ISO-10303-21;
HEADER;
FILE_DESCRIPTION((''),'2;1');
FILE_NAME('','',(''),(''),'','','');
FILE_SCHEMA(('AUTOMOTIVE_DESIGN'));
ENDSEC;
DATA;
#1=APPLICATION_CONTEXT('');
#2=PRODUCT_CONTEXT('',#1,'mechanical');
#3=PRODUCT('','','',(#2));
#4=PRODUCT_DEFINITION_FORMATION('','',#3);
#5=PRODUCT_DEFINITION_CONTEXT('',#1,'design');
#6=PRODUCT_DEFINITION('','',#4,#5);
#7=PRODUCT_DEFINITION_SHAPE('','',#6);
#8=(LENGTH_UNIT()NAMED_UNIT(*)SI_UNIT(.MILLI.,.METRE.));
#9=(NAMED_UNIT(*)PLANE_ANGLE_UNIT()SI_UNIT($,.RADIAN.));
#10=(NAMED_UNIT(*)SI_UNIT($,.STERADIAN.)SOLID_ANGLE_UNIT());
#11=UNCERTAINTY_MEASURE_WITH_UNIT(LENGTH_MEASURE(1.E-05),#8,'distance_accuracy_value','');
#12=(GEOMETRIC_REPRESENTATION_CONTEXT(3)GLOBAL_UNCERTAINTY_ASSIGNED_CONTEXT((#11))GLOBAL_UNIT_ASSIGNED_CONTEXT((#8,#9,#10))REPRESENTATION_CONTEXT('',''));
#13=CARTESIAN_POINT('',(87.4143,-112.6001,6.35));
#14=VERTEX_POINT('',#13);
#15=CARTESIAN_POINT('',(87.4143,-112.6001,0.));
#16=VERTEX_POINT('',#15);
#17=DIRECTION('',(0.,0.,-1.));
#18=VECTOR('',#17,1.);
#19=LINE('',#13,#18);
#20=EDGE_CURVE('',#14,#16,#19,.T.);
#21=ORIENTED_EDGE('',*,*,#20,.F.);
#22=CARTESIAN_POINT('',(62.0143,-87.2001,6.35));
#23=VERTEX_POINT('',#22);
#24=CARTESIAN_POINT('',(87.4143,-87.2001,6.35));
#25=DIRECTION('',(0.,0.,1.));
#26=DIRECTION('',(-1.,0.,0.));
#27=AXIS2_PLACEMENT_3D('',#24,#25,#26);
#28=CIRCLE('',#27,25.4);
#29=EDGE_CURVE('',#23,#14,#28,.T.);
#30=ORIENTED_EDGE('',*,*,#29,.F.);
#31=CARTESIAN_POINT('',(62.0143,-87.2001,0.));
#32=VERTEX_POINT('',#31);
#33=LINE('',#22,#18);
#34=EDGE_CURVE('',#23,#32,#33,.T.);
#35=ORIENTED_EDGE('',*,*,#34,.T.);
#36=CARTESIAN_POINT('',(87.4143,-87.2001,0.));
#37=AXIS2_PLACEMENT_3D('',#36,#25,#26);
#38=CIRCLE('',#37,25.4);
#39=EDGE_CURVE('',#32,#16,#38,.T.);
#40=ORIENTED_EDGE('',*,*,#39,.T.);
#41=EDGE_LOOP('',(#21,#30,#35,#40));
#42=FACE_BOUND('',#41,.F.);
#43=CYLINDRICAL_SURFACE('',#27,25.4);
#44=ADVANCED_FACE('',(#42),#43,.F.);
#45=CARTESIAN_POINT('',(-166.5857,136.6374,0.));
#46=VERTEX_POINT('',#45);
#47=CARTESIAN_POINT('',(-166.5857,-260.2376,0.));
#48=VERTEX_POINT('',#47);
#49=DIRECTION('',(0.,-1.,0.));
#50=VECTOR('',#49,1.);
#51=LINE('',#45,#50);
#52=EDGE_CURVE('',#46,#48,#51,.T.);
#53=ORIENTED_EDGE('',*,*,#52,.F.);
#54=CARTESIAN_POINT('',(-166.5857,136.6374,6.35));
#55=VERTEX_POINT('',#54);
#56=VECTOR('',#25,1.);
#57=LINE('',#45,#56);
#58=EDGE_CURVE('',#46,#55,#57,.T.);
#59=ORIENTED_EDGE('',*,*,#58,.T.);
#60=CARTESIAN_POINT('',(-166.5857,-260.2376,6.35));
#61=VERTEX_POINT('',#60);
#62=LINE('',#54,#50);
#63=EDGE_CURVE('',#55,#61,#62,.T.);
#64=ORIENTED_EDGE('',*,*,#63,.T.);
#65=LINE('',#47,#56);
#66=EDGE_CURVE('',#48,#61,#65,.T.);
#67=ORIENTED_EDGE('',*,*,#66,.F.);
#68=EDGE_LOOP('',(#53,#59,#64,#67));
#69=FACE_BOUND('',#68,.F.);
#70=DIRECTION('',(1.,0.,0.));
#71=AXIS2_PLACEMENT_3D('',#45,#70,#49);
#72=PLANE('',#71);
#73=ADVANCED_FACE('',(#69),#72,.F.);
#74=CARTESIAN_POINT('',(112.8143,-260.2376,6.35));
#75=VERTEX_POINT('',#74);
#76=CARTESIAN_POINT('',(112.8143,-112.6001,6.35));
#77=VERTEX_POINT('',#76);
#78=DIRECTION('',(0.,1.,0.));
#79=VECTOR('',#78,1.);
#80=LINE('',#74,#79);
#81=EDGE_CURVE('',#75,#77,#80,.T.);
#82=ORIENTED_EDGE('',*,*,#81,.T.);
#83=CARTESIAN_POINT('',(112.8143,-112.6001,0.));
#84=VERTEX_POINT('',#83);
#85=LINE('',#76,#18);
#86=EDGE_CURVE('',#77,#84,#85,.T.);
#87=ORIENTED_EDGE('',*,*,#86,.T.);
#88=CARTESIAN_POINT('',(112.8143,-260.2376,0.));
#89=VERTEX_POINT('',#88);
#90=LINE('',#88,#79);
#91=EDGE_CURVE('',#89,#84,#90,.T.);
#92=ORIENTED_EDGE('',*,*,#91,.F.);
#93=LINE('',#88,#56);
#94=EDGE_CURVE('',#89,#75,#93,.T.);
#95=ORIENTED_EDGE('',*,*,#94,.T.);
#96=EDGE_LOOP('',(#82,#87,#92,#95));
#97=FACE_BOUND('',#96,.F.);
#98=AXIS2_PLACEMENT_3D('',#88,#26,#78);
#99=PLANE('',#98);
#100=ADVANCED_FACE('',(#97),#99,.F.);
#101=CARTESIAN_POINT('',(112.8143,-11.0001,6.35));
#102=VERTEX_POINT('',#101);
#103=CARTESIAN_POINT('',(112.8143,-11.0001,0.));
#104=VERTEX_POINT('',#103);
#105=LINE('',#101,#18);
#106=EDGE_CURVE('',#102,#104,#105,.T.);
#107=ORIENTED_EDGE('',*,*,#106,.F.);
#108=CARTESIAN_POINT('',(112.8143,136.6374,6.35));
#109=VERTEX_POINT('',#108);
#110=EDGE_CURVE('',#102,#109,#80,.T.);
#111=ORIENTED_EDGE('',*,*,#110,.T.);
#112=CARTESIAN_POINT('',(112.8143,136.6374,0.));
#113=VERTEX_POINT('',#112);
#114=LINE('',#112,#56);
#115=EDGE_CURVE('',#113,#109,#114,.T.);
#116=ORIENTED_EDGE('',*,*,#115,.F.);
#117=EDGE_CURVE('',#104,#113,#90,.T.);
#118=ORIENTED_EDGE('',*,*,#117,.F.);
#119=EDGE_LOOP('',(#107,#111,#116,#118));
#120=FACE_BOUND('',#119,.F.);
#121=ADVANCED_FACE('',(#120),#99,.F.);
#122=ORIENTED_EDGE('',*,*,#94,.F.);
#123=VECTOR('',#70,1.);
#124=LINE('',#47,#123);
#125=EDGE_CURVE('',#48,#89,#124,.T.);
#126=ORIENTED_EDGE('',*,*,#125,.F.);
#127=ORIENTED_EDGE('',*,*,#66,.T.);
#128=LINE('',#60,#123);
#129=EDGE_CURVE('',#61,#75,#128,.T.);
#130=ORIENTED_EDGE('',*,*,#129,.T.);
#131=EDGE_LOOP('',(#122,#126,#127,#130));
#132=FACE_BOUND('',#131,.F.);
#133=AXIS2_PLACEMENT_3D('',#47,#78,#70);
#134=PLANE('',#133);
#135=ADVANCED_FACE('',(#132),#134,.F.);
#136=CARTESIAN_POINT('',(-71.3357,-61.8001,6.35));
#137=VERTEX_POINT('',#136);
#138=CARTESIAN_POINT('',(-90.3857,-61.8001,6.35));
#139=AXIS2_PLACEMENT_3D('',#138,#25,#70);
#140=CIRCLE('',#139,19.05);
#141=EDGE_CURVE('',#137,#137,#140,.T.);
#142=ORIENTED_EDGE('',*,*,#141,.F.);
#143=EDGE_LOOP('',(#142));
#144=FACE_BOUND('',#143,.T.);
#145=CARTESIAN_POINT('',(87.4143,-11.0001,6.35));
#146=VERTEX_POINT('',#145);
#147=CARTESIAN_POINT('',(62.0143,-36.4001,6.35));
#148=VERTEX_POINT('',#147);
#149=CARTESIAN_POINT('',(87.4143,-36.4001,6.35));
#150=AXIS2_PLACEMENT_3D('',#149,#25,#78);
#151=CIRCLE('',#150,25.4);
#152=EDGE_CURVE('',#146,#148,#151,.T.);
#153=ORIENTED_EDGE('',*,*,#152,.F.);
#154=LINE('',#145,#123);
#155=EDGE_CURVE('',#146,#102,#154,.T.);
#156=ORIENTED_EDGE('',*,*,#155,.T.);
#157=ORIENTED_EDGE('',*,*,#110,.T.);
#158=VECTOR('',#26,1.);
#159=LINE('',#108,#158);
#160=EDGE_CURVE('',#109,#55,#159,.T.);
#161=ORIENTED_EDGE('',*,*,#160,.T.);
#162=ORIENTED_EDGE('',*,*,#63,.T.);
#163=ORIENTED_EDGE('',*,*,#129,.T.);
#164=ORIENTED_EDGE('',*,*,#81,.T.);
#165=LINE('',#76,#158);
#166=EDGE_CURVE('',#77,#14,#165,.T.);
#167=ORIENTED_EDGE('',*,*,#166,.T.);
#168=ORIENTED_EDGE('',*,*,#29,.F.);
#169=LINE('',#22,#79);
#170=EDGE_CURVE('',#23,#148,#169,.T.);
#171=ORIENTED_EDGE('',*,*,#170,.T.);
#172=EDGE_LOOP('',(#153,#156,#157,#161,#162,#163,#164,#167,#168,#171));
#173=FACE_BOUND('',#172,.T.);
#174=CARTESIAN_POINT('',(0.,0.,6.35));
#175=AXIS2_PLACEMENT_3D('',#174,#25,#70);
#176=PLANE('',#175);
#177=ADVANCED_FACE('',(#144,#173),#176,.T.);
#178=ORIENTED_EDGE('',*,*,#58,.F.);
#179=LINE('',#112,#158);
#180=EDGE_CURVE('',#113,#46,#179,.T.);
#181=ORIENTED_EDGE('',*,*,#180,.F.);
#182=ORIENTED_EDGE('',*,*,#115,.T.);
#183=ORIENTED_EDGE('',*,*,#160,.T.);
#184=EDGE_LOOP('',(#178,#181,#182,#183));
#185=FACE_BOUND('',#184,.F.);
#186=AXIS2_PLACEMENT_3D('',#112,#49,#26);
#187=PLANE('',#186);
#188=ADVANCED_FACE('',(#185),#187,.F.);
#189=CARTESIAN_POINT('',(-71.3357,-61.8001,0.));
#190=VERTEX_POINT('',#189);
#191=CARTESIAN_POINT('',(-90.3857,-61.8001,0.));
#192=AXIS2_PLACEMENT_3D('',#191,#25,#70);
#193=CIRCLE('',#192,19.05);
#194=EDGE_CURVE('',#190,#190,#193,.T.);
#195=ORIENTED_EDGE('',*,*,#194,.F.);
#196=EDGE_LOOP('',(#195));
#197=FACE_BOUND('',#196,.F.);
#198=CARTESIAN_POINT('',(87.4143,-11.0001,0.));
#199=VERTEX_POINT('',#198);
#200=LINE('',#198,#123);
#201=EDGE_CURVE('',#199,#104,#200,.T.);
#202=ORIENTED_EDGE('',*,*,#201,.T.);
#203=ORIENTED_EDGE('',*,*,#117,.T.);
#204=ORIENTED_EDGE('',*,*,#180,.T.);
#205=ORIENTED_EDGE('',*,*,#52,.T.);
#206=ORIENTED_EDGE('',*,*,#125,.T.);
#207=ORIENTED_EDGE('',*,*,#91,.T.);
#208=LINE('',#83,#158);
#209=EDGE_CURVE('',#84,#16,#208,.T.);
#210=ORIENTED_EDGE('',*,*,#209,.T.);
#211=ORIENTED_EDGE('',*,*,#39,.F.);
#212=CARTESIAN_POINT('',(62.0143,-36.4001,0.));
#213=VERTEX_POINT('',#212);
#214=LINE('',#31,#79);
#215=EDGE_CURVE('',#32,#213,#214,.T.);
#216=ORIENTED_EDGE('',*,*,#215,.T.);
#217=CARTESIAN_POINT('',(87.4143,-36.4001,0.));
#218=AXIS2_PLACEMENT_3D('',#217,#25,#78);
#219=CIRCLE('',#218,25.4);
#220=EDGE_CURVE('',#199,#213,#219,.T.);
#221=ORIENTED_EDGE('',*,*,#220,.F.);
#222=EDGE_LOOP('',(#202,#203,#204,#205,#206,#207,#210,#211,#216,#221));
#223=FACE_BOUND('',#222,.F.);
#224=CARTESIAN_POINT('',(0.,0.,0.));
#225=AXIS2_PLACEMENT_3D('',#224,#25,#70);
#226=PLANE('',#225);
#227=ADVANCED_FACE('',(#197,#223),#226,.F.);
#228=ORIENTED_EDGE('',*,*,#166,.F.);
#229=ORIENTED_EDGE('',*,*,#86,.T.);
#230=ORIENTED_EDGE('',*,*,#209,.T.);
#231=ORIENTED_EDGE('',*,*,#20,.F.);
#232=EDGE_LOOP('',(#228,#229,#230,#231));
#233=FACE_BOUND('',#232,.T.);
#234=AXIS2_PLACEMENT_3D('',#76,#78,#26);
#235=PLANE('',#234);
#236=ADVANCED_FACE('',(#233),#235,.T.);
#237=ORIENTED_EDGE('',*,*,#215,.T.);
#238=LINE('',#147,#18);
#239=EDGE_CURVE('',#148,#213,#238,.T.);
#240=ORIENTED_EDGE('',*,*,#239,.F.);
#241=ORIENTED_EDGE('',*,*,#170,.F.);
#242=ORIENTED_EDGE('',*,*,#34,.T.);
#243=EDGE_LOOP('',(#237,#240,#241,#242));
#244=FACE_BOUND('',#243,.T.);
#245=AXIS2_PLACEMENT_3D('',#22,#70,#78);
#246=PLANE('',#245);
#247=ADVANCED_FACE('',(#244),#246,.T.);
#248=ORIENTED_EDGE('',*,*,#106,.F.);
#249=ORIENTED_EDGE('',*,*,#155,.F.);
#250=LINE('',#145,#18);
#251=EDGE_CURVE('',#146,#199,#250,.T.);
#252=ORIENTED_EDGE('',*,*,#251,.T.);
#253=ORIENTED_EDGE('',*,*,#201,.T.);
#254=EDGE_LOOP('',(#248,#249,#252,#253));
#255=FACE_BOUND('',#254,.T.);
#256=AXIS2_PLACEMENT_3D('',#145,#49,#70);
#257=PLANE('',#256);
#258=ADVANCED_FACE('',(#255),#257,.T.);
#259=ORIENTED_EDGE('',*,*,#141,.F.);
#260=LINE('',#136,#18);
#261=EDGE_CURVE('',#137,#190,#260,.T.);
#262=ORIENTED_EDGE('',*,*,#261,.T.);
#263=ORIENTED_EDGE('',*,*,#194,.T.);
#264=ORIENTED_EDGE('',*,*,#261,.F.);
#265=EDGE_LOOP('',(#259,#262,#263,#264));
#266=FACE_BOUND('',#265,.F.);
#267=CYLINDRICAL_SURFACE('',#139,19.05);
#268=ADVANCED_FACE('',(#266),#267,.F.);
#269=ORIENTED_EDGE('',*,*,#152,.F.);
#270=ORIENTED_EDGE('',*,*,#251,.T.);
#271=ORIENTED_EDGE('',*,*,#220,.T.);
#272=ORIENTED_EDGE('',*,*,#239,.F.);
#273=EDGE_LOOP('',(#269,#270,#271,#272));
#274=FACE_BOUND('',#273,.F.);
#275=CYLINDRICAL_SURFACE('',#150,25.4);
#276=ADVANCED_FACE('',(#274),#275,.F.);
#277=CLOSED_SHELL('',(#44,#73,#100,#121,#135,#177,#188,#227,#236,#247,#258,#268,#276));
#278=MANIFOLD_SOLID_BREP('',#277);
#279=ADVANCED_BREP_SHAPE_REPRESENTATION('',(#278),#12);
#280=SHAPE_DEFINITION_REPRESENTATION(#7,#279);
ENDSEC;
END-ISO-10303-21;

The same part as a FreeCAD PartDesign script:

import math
import FreeCAD as App
import Part
import Sketcher
from FreeCAD import Vector
Q = App.Units.Quantity


def add_polygon(sketch, points):
    """Adds a closed chain of lines whose ends are joined by coincident constraints."""
    first, n = sketch.GeometryCount, len(points)
    for a, b in zip(points, points[1:] + points[:1]):
        sketch.addGeometry(Part.LineSegment(App.Vector(*a, 0), App.Vector(*b, 0)), False)
    for i in range(n):
        sketch.addConstraint(Sketcher.Constraint("Coincident", first + i, 2, first + (i + 1) % n, 1))

doc = App.newDocument("Part")
params = doc.addObject("Spreadsheet::Sheet", "Params")
for row, (alias, value) in enumerate([
    ("sketch1_width", "11 in"),
    ("sketch1_height", "15.625 in"),
    ("pad1_length", "0.25 in"),
    ("sketch2_radius", "1 in"),
    ("sketch2_diameter", "1.5 in"),
    ("sketch2_width", "1 in"),
    ("sketch2_height", "4 in"),
    ("pocket1_length", "0.25 in"),
], start=1):
    params.set(f"A{row}", alias)
    params.set(f"B{row}", "=" + value)
    params.setAlias(f"B{row}", alias)

body = doc.addObject("PartDesign::Body", "Body")

# Sketch on XY plane
sketch1 = doc.addObject("Sketcher::SketchObject", "Sketch")
body.addObject(sketch1)
sketch1.AttachmentSupport = (doc.XY_Plane, [""])
sketch1.MapMode = "FlatFace"
add_polygon(sketch1, [(-167, 137), (-167, -260), (113, -260), (113, 137)])  # lines 0-3
sketch1.addConstraint(Sketcher.Constraint("Vertical", 0))
sketch1.addConstraint(Sketcher.Constraint("Horizontal", 1))
sketch1.addConstraint(Sketcher.Constraint("Vertical", 2))
sketch1.addConstraint(Sketcher.Constraint("Horizontal", 3))
sketch1.addConstraint(Sketcher.Constraint("DistanceX", 1, 1, 1, 2, Q("11 in")))
sketch1.addConstraint(Sketcher.Constraint("DistanceY", 0, 2, 0, 1, Q("15.625 in")))
sketch1.addConstraint(Sketcher.Constraint("DistanceX", 0, 2, -1, 1, Q("6.5585 in")))
sketch1.addConstraint(Sketcher.Constraint("DistanceY", 0, 2, -1, 1, 260.2376))
sketch1.setExpression("Constraints[8]", "Params.sketch1_width")
sketch1.setExpression("Constraints[9]", "Params.sketch1_height")
pad1 = doc.addObject("PartDesign::Pad", "Pad")
body.addObject(pad1)
pad1.Profile = sketch1
pad1.setExpression("Length", "Params.pad1_length")

# Sketch on XY plane
sketch2 = doc.addObject("Sketcher::SketchObject", "Sketch001")
body.addObject(sketch2)
sketch2.AttachmentSupport = (doc.XY_Plane, [""])
sketch2.MapMode = "FlatFace"
sketch2.AttachmentOffset = App.Placement(Vector(0, 0, 0.25 * 25.4), App.Rotation())
sketch2.addGeometry(Part.Circle(Vector(-90, -62, 0), Vector(0, 0, 1), 19), False)
sketch2.addGeometry(Part.LineSegment(Vector(87, -113, 0), Vector(113, -113, 0)), False)
sketch2.addGeometry(Part.LineSegment(Vector(113, -113, 0), Vector(113, -11, 0)), False)
sketch2.addGeometry(Part.LineSegment(Vector(113, -11, 0), Vector(87, -11, 0)), False)
sketch2.addGeometry(Part.ArcOfCircle(Part.Circle(Vector(87, -36, 0), Vector(0, 0, 1), 25), math.radians(90), math.radians(180)), False)
sketch2.addGeometry(Part.LineSegment(Vector(62, -36, 0), Vector(62, -87, 0)), False)
sketch2.addGeometry(Part.ArcOfCircle(Part.Circle(Vector(87, -87, 0), Vector(0, 0, 1), 25), math.radians(180), math.radians(270)), False)
sketch2.addConstraint(Sketcher.Constraint("Coincident", 1, 2, 2, 1))
sketch2.addConstraint(Sketcher.Constraint("Coincident", 2, 2, 3, 1))
sketch2.addConstraint(Sketcher.Constraint("Tangent", 3, 2, 4, 1))
sketch2.addConstraint(Sketcher.Constraint("Tangent", 4, 2, 5, 1))
sketch2.addConstraint(Sketcher.Constraint("Tangent", 5, 2, 6, 1))
sketch2.addConstraint(Sketcher.Constraint("Tangent", 6, 2, 1, 1))
sketch2.addConstraint(Sketcher.Constraint("Horizontal", 1))
sketch2.addConstraint(Sketcher.Constraint("Vertical", 2))
sketch2.addConstraint(Sketcher.Constraint("Horizontal", 3))
sketch2.addConstraint(Sketcher.Constraint("Vertical", 5))
sketch2.addConstraint(Sketcher.Constraint("Equal", 4, 6))
sketch2.addConstraint(Sketcher.Constraint("Radius", 4, Q("1 in")))
sketch2.addConstraint(Sketcher.Constraint("Diameter", 0, Q("1.5 in")))
sketch2.addConstraint(Sketcher.Constraint("DistanceX", 1, 1, 1, 2, Q("1 in")))
sketch2.addConstraint(Sketcher.Constraint("DistanceY", 2, 1, 2, 2, Q("4 in")))
sketch2.addConstraint(Sketcher.Constraint("DistanceY", 0, 3, 4, 3, Q("1 in")))
sketch2.addConstraint(Sketcher.Constraint("DistanceX", 0, 3, 4, 3, Q("7 in")))
sketch2.addConstraint(Sketcher.Constraint("DistanceX", 0, 3, -1, 1, Q("3.5585 in")))
sketch2.addConstraint(Sketcher.Constraint("DistanceY", 0, 3, -1, 1, 61.8))
sketch2.setExpression("Constraints[11]", "Params.sketch2_radius")
sketch2.setExpression("Constraints[12]", "Params.sketch2_diameter")
sketch2.setExpression("Constraints[13]", "Params.sketch2_width")
sketch2.setExpression("Constraints[14]", "Params.sketch2_height")
pocket1 = doc.addObject("PartDesign::Pocket", "Pocket")
body.addObject(pocket1)
pocket1.Profile = sketch2
pocket1.setExpression("Length", "Params.pocket1_length")

doc.recompute()
